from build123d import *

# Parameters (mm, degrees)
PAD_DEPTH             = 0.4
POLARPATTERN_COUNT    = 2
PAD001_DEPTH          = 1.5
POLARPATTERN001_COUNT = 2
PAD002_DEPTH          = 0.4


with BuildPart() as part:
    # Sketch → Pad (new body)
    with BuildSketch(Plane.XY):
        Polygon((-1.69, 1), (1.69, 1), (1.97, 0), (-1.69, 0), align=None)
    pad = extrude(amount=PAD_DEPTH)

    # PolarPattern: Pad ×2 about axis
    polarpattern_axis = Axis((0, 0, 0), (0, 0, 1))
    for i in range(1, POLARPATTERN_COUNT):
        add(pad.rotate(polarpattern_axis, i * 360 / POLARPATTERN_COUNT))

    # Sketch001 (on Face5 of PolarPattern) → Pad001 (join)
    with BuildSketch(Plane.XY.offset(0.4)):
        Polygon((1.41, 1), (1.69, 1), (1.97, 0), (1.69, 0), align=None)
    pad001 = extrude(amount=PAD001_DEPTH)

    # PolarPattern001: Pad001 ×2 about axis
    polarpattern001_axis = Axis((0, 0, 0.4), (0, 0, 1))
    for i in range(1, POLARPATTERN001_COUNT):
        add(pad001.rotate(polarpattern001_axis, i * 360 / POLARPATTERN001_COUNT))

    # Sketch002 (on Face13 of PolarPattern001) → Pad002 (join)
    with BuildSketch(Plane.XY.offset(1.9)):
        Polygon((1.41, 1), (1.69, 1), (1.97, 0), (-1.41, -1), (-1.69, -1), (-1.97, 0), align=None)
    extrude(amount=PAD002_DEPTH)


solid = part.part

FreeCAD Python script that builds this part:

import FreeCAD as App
import Part
import Sketcher
from FreeCAD import Vector

doc = App.newDocument("Part")
body = doc.addObject("PartDesign::Body", "Body")

# Sketch on XY plane
sketch1 = body.newObject("Sketcher::SketchObject", "Sketch")
sketch1.AttachmentSupport = (doc.getObject("XY_Plane"), [""])
sketch1.MapMode = "FlatFace"
sketch1.addGeometry(Part.LineSegment(Vector(1.7, 1, 0), Vector(-1.7, 1, 0)), False)
sketch1.addGeometry(Part.LineSegment(Vector(-1.7, 1, 0), Vector(-1.7, 0, 0)), False)
sketch1.addGeometry(Part.LineSegment(Vector(-1.7, 0, 0), Vector(2, 0, 0)), False)
sketch1.addGeometry(Part.LineSegment(Vector(2, 0, 0), Vector(1.7, 1, 0)), False)
sketch1.addConstraint(Sketcher.Constraint("Coincident", 0, 2, 1, 1))
sketch1.addConstraint(Sketcher.Constraint("Coincident", 1, 2, 2, 1))
sketch1.addConstraint(Sketcher.Constraint("Coincident", 2, 2, 3, 1))
sketch1.addConstraint(Sketcher.Constraint("Coincident", 3, 2, 0, 1))
sketch1.addConstraint(Sketcher.Constraint("Horizontal", 0))
sketch1.addConstraint(Sketcher.Constraint("Vertical", 1))
sketch1.addConstraint(Sketcher.Constraint("Horizontal", 2))
sketch1.addConstraint(Sketcher.Constraint("PointOnObject", 1, 2, -1))
sketch1.addConstraint(Sketcher.Constraint("DistanceY", 1, 2, 1, 1, 1.0))
sketch1.addConstraint(Sketcher.Constraint("DistanceX", 0, 2, 0, 1, 3.38))
sketch1.addConstraint(Sketcher.Constraint("DistanceX", 2, 1, 2, 2, 3.66))
sketch1.addConstraint(Sketcher.Constraint("DistanceX", 0, 2, -1, 1, 1.69))
pad1 = body.newObject("PartDesign::Pad", "Pad")
pad1.Profile = sketch1
pad1.Length = 0.4
doc.recompute()

polarpattern = body.newObject("PartDesign::PolarPattern", "PolarPattern")
polarpattern.Originals = [pad1]
polarpattern.Axis = (doc.getObject("Z_Axis"), [""])
polarpattern.Angle = 360
polarpattern.Occurrences = 2
body.Tip = polarpattern

# Sketch on XY plane
sketch2 = body.newObject("Sketcher::SketchObject", "Sketch001")
sketch2.AttachmentSupport = (doc.getObject("XY_Plane"), [""])
sketch2.MapMode = "FlatFace"
sketch2.AttachmentOffset = App.Placement(Vector(0, 0, 0.4), App.Rotation())
sketch2.addGeometry(Part.LineSegment(Vector(1.69, 1, 0), Vector(1.41, 1, 0)), False)
sketch2.addGeometry(Part.LineSegment(Vector(1.41, 1, 0), Vector(1.69, 0, 0)), False)
sketch2.addGeometry(Part.LineSegment(Vector(1.69, 0, 0), Vector(1.97, 0, 0)), False)
sketch2.addGeometry(Part.LineSegment(Vector(1.97, 0, 0), Vector(1.69, 1, 0)), False)
sketch2.addConstraint(Sketcher.Constraint("Coincident", 0, 2, 1, 1))
sketch2.addConstraint(Sketcher.Constraint("Coincident", 1, 2, 2, 1))
sketch2.addConstraint(Sketcher.Constraint("Coincident", 2, 2, 3, 1))
sketch2.addConstraint(Sketcher.Constraint("Coincident", 3, 2, 0, 1))
sketch2.addConstraint(Sketcher.Constraint("Horizontal", 0))
sketch2.addConstraint(Sketcher.Constraint("Horizontal", 2))
sketch2.addConstraint(Sketcher.Constraint("PointOnObject", 1, 2, -1))
sketch2.addConstraint(Sketcher.Constraint("Parallel", 1, 3))
sketch2.addConstraint(Sketcher.Constraint("Vertical", 1, 2, 3, 2))
sketch2.addConstraint(Sketcher.Constraint("DistanceY", -1, 1, 0, 2, 1.0))
sketch2.addConstraint(Sketcher.Constraint("DistanceX", 0, 2, 0, 1, 0.28))
sketch2.addConstraint(Sketcher.Constraint("DistanceX", -1, 1, 0, 2, 1.41))
pad2 = body.newObject("PartDesign::Pad", "Pad001")
pad2.Profile = sketch2
pad2.Length = 1.5
doc.recompute()

polarpattern2 = body.newObject("PartDesign::PolarPattern", "PolarPattern001")
polarpattern2.Originals = [pad2]
polarpattern2.Axis = (doc.getObject("Z_Axis"), [""])
polarpattern2.Angle = 360
polarpattern2.Occurrences = 2
body.Tip = polarpattern2

# Sketch on XY plane
sketch3 = body.newObject("Sketcher::SketchObject", "Sketch002")
sketch3.AttachmentSupport = (doc.getObject("XY_Plane"), [""])
sketch3.MapMode = "FlatFace"
sketch3.AttachmentOffset = App.Placement(Vector(0, 0, 1.9), App.Rotation())
sketch3.addGeometry(Part.LineSegment(Vector(1.69, 1, 0), Vector(1.41, 1, 0)), False)
sketch3.addGeometry(Part.LineSegment(Vector(1.41, 1, 0), Vector(-1.97, 0, 0)), False)
sketch3.addGeometry(Part.LineSegment(Vector(-1.97, 0, 0), Vector(-1.69, -1, 0)), False)
sketch3.addGeometry(Part.LineSegment(Vector(-1.69, -1, 0), Vector(-1.41, -1, 0)), False)
sketch3.addGeometry(Part.LineSegment(Vector(-1.41, -1, 0), Vector(1.97, 0, 0)), False)
sketch3.addGeometry(Part.LineSegment(Vector(1.97, 0, 0), Vector(1.69, 1, 0)), False)
sketch3.addConstraint(Sketcher.Constraint("Coincident", 0, 2, 1, 1))
sketch3.addConstraint(Sketcher.Constraint("Coincident", 1, 2, 2, 1))
sketch3.addConstraint(Sketcher.Constraint("Coincident", 2, 2, 3, 1))
sketch3.addConstraint(Sketcher.Constraint("Coincident", 3, 2, 4, 1))
sketch3.addConstraint(Sketcher.Constraint("Coincident", 4, 2, 5, 1))
sketch3.addConstraint(Sketcher.Constraint("Coincident", 5, 2, 0, 1))
sketch3.addConstraint(Sketcher.Constraint("Horizontal", 0))
sketch3.addConstraint(Sketcher.Constraint("Horizontal", 3))
sketch3.addConstraint(Sketcher.Constraint("Symmetric", 0, 2, 3, 2, -1, 1))
sketch3.addConstraint(Sketcher.Constraint("Symmetric", 1, 2, 4, 2, -1, 1))
sketch3.addConstraint(Sketcher.Constraint("PointOnObject", 1, 2, -1))
sketch3.addConstraint(Sketcher.Constraint("Parallel", 2, 5))
sketch3.addConstraint(Sketcher.Constraint("DistanceY", -1, 1, 0, 2, 1.0))
sketch3.addConstraint(Sketcher.Constraint("DistanceX", 0, 2, 0, 1, 0.28))
sketch3.addConstraint(Sketcher.Constraint("DistanceX", 2, 2, 0, 2, 3.1))
sketch3.addConstraint(Sketcher.Constraint("DistanceX", 1, 2, -1, 1, 1.97))
pad3 = body.newObject("PartDesign::Pad", "Pad002")
pad3.Profile = sketch3
pad3.Length = 0.4

doc.recompute()
